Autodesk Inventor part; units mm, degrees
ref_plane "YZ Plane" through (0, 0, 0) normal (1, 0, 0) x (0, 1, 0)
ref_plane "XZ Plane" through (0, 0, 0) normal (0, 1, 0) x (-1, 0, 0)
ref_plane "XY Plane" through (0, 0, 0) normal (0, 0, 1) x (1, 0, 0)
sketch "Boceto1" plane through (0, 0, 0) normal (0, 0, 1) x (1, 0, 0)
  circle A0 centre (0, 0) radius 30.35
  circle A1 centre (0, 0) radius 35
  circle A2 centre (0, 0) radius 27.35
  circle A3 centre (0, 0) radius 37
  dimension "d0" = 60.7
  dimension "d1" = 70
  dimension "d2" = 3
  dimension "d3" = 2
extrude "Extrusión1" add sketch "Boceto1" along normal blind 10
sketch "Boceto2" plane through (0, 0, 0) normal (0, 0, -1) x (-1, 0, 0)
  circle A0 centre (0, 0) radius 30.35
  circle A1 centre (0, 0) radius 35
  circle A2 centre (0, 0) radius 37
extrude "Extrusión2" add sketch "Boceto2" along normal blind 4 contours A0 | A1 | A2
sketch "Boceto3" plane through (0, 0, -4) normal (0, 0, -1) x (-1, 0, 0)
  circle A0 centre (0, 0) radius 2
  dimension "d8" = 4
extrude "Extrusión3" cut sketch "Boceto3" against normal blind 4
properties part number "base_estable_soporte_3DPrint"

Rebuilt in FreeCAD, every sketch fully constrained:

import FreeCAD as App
import Part
import Sketcher

V = App.Vector
Q = App.Units.Quantity

doc = App.newDocument("Part")
body = doc.addObject("PartDesign::Body", "Body")
body.AllowCompound = True

sketch1 = body.newObject("Sketcher::SketchObject", "Sketch")
sketch1.AttachmentSupport = (doc.getObject("XY_Plane"), [""])
sketch1.MapMode = "FlatFace"
sketch1.addGeometry([
    Part.Circle(V(0, 0, 0), V(0, 0, 1), 30),
    Part.Circle(V(0, 0, 0), V(0, 0, 1), 27),
    Part.Circle(V(0, 0, 0), V(0, 0, 1), 37),
    Part.Circle(V(0, 0, 0), V(0, 0, 1), 35),
], False)
sketch1.addConstraint([
    Sketcher.Constraint("Coincident", 0, 3, -1, 1),
    Sketcher.Constraint("Coincident", 1, 3, -1, 1),
    Sketcher.Constraint("Coincident", 2, 3, -1, 1),
    Sketcher.Constraint("Coincident", 3, 3, -1, 1),
    Sketcher.Constraint("Diameter", 3, Q("70 mm")),
    Sketcher.Constraint("Diameter", 0, Q("60.7 mm")),
    Sketcher.Constraint("Diameter", 2, Q("74 mm")),
    Sketcher.Constraint("Diameter", 1, Q("54.7 mm")),
])
pad1 = body.newObject("PartDesign::Pad", "Pad")
pad1.Profile = sketch1
pad1.Length = 10

sketch2 = body.newObject("Sketcher::SketchObject", "Sketch001")
sketch2.AttachmentSupport = (doc.getObject("XY_Plane"), [""])
sketch2.MapMode = "FlatFace"
sketch2.addGeometry(Part.Circle(V(0, 0, 0), V(0, 0, 1), 37), False)
sketch2.addConstraint([
    Sketcher.Constraint("Coincident", 0, 3, -1, 1),
    Sketcher.Constraint("Diameter", 0, Q("74 mm")),
])
pad2 = body.newObject("PartDesign::Pad", "Pad001")
pad2.Profile = sketch2
pad2.Length = 4
pad2.Reversed = True

sketch3 = body.newObject("Sketcher::SketchObject", "Sketch002")
sketch3.AttachmentSupport = (doc.getObject("XY_Plane"), [""])
sketch3.MapMode = "FlatFace"
sketch3.AttachmentOffset = App.Placement(V(0, 0, -4), App.Rotation())
sketch3.addGeometry(Part.Circle(V(0, 0, 0), V(0, 0, 1), 2), False)
sketch3.addConstraint([
    Sketcher.Constraint("Coincident", 0, 3, -1, 1),
    Sketcher.Constraint("Diameter", 0, Q("4 mm")),
])
pocket1 = body.newObject("PartDesign::Pocket", "Pocket")
pocket1.Profile = sketch3
pocket1.Length = 4
pocket1.Reversed = True

doc.recompute()
